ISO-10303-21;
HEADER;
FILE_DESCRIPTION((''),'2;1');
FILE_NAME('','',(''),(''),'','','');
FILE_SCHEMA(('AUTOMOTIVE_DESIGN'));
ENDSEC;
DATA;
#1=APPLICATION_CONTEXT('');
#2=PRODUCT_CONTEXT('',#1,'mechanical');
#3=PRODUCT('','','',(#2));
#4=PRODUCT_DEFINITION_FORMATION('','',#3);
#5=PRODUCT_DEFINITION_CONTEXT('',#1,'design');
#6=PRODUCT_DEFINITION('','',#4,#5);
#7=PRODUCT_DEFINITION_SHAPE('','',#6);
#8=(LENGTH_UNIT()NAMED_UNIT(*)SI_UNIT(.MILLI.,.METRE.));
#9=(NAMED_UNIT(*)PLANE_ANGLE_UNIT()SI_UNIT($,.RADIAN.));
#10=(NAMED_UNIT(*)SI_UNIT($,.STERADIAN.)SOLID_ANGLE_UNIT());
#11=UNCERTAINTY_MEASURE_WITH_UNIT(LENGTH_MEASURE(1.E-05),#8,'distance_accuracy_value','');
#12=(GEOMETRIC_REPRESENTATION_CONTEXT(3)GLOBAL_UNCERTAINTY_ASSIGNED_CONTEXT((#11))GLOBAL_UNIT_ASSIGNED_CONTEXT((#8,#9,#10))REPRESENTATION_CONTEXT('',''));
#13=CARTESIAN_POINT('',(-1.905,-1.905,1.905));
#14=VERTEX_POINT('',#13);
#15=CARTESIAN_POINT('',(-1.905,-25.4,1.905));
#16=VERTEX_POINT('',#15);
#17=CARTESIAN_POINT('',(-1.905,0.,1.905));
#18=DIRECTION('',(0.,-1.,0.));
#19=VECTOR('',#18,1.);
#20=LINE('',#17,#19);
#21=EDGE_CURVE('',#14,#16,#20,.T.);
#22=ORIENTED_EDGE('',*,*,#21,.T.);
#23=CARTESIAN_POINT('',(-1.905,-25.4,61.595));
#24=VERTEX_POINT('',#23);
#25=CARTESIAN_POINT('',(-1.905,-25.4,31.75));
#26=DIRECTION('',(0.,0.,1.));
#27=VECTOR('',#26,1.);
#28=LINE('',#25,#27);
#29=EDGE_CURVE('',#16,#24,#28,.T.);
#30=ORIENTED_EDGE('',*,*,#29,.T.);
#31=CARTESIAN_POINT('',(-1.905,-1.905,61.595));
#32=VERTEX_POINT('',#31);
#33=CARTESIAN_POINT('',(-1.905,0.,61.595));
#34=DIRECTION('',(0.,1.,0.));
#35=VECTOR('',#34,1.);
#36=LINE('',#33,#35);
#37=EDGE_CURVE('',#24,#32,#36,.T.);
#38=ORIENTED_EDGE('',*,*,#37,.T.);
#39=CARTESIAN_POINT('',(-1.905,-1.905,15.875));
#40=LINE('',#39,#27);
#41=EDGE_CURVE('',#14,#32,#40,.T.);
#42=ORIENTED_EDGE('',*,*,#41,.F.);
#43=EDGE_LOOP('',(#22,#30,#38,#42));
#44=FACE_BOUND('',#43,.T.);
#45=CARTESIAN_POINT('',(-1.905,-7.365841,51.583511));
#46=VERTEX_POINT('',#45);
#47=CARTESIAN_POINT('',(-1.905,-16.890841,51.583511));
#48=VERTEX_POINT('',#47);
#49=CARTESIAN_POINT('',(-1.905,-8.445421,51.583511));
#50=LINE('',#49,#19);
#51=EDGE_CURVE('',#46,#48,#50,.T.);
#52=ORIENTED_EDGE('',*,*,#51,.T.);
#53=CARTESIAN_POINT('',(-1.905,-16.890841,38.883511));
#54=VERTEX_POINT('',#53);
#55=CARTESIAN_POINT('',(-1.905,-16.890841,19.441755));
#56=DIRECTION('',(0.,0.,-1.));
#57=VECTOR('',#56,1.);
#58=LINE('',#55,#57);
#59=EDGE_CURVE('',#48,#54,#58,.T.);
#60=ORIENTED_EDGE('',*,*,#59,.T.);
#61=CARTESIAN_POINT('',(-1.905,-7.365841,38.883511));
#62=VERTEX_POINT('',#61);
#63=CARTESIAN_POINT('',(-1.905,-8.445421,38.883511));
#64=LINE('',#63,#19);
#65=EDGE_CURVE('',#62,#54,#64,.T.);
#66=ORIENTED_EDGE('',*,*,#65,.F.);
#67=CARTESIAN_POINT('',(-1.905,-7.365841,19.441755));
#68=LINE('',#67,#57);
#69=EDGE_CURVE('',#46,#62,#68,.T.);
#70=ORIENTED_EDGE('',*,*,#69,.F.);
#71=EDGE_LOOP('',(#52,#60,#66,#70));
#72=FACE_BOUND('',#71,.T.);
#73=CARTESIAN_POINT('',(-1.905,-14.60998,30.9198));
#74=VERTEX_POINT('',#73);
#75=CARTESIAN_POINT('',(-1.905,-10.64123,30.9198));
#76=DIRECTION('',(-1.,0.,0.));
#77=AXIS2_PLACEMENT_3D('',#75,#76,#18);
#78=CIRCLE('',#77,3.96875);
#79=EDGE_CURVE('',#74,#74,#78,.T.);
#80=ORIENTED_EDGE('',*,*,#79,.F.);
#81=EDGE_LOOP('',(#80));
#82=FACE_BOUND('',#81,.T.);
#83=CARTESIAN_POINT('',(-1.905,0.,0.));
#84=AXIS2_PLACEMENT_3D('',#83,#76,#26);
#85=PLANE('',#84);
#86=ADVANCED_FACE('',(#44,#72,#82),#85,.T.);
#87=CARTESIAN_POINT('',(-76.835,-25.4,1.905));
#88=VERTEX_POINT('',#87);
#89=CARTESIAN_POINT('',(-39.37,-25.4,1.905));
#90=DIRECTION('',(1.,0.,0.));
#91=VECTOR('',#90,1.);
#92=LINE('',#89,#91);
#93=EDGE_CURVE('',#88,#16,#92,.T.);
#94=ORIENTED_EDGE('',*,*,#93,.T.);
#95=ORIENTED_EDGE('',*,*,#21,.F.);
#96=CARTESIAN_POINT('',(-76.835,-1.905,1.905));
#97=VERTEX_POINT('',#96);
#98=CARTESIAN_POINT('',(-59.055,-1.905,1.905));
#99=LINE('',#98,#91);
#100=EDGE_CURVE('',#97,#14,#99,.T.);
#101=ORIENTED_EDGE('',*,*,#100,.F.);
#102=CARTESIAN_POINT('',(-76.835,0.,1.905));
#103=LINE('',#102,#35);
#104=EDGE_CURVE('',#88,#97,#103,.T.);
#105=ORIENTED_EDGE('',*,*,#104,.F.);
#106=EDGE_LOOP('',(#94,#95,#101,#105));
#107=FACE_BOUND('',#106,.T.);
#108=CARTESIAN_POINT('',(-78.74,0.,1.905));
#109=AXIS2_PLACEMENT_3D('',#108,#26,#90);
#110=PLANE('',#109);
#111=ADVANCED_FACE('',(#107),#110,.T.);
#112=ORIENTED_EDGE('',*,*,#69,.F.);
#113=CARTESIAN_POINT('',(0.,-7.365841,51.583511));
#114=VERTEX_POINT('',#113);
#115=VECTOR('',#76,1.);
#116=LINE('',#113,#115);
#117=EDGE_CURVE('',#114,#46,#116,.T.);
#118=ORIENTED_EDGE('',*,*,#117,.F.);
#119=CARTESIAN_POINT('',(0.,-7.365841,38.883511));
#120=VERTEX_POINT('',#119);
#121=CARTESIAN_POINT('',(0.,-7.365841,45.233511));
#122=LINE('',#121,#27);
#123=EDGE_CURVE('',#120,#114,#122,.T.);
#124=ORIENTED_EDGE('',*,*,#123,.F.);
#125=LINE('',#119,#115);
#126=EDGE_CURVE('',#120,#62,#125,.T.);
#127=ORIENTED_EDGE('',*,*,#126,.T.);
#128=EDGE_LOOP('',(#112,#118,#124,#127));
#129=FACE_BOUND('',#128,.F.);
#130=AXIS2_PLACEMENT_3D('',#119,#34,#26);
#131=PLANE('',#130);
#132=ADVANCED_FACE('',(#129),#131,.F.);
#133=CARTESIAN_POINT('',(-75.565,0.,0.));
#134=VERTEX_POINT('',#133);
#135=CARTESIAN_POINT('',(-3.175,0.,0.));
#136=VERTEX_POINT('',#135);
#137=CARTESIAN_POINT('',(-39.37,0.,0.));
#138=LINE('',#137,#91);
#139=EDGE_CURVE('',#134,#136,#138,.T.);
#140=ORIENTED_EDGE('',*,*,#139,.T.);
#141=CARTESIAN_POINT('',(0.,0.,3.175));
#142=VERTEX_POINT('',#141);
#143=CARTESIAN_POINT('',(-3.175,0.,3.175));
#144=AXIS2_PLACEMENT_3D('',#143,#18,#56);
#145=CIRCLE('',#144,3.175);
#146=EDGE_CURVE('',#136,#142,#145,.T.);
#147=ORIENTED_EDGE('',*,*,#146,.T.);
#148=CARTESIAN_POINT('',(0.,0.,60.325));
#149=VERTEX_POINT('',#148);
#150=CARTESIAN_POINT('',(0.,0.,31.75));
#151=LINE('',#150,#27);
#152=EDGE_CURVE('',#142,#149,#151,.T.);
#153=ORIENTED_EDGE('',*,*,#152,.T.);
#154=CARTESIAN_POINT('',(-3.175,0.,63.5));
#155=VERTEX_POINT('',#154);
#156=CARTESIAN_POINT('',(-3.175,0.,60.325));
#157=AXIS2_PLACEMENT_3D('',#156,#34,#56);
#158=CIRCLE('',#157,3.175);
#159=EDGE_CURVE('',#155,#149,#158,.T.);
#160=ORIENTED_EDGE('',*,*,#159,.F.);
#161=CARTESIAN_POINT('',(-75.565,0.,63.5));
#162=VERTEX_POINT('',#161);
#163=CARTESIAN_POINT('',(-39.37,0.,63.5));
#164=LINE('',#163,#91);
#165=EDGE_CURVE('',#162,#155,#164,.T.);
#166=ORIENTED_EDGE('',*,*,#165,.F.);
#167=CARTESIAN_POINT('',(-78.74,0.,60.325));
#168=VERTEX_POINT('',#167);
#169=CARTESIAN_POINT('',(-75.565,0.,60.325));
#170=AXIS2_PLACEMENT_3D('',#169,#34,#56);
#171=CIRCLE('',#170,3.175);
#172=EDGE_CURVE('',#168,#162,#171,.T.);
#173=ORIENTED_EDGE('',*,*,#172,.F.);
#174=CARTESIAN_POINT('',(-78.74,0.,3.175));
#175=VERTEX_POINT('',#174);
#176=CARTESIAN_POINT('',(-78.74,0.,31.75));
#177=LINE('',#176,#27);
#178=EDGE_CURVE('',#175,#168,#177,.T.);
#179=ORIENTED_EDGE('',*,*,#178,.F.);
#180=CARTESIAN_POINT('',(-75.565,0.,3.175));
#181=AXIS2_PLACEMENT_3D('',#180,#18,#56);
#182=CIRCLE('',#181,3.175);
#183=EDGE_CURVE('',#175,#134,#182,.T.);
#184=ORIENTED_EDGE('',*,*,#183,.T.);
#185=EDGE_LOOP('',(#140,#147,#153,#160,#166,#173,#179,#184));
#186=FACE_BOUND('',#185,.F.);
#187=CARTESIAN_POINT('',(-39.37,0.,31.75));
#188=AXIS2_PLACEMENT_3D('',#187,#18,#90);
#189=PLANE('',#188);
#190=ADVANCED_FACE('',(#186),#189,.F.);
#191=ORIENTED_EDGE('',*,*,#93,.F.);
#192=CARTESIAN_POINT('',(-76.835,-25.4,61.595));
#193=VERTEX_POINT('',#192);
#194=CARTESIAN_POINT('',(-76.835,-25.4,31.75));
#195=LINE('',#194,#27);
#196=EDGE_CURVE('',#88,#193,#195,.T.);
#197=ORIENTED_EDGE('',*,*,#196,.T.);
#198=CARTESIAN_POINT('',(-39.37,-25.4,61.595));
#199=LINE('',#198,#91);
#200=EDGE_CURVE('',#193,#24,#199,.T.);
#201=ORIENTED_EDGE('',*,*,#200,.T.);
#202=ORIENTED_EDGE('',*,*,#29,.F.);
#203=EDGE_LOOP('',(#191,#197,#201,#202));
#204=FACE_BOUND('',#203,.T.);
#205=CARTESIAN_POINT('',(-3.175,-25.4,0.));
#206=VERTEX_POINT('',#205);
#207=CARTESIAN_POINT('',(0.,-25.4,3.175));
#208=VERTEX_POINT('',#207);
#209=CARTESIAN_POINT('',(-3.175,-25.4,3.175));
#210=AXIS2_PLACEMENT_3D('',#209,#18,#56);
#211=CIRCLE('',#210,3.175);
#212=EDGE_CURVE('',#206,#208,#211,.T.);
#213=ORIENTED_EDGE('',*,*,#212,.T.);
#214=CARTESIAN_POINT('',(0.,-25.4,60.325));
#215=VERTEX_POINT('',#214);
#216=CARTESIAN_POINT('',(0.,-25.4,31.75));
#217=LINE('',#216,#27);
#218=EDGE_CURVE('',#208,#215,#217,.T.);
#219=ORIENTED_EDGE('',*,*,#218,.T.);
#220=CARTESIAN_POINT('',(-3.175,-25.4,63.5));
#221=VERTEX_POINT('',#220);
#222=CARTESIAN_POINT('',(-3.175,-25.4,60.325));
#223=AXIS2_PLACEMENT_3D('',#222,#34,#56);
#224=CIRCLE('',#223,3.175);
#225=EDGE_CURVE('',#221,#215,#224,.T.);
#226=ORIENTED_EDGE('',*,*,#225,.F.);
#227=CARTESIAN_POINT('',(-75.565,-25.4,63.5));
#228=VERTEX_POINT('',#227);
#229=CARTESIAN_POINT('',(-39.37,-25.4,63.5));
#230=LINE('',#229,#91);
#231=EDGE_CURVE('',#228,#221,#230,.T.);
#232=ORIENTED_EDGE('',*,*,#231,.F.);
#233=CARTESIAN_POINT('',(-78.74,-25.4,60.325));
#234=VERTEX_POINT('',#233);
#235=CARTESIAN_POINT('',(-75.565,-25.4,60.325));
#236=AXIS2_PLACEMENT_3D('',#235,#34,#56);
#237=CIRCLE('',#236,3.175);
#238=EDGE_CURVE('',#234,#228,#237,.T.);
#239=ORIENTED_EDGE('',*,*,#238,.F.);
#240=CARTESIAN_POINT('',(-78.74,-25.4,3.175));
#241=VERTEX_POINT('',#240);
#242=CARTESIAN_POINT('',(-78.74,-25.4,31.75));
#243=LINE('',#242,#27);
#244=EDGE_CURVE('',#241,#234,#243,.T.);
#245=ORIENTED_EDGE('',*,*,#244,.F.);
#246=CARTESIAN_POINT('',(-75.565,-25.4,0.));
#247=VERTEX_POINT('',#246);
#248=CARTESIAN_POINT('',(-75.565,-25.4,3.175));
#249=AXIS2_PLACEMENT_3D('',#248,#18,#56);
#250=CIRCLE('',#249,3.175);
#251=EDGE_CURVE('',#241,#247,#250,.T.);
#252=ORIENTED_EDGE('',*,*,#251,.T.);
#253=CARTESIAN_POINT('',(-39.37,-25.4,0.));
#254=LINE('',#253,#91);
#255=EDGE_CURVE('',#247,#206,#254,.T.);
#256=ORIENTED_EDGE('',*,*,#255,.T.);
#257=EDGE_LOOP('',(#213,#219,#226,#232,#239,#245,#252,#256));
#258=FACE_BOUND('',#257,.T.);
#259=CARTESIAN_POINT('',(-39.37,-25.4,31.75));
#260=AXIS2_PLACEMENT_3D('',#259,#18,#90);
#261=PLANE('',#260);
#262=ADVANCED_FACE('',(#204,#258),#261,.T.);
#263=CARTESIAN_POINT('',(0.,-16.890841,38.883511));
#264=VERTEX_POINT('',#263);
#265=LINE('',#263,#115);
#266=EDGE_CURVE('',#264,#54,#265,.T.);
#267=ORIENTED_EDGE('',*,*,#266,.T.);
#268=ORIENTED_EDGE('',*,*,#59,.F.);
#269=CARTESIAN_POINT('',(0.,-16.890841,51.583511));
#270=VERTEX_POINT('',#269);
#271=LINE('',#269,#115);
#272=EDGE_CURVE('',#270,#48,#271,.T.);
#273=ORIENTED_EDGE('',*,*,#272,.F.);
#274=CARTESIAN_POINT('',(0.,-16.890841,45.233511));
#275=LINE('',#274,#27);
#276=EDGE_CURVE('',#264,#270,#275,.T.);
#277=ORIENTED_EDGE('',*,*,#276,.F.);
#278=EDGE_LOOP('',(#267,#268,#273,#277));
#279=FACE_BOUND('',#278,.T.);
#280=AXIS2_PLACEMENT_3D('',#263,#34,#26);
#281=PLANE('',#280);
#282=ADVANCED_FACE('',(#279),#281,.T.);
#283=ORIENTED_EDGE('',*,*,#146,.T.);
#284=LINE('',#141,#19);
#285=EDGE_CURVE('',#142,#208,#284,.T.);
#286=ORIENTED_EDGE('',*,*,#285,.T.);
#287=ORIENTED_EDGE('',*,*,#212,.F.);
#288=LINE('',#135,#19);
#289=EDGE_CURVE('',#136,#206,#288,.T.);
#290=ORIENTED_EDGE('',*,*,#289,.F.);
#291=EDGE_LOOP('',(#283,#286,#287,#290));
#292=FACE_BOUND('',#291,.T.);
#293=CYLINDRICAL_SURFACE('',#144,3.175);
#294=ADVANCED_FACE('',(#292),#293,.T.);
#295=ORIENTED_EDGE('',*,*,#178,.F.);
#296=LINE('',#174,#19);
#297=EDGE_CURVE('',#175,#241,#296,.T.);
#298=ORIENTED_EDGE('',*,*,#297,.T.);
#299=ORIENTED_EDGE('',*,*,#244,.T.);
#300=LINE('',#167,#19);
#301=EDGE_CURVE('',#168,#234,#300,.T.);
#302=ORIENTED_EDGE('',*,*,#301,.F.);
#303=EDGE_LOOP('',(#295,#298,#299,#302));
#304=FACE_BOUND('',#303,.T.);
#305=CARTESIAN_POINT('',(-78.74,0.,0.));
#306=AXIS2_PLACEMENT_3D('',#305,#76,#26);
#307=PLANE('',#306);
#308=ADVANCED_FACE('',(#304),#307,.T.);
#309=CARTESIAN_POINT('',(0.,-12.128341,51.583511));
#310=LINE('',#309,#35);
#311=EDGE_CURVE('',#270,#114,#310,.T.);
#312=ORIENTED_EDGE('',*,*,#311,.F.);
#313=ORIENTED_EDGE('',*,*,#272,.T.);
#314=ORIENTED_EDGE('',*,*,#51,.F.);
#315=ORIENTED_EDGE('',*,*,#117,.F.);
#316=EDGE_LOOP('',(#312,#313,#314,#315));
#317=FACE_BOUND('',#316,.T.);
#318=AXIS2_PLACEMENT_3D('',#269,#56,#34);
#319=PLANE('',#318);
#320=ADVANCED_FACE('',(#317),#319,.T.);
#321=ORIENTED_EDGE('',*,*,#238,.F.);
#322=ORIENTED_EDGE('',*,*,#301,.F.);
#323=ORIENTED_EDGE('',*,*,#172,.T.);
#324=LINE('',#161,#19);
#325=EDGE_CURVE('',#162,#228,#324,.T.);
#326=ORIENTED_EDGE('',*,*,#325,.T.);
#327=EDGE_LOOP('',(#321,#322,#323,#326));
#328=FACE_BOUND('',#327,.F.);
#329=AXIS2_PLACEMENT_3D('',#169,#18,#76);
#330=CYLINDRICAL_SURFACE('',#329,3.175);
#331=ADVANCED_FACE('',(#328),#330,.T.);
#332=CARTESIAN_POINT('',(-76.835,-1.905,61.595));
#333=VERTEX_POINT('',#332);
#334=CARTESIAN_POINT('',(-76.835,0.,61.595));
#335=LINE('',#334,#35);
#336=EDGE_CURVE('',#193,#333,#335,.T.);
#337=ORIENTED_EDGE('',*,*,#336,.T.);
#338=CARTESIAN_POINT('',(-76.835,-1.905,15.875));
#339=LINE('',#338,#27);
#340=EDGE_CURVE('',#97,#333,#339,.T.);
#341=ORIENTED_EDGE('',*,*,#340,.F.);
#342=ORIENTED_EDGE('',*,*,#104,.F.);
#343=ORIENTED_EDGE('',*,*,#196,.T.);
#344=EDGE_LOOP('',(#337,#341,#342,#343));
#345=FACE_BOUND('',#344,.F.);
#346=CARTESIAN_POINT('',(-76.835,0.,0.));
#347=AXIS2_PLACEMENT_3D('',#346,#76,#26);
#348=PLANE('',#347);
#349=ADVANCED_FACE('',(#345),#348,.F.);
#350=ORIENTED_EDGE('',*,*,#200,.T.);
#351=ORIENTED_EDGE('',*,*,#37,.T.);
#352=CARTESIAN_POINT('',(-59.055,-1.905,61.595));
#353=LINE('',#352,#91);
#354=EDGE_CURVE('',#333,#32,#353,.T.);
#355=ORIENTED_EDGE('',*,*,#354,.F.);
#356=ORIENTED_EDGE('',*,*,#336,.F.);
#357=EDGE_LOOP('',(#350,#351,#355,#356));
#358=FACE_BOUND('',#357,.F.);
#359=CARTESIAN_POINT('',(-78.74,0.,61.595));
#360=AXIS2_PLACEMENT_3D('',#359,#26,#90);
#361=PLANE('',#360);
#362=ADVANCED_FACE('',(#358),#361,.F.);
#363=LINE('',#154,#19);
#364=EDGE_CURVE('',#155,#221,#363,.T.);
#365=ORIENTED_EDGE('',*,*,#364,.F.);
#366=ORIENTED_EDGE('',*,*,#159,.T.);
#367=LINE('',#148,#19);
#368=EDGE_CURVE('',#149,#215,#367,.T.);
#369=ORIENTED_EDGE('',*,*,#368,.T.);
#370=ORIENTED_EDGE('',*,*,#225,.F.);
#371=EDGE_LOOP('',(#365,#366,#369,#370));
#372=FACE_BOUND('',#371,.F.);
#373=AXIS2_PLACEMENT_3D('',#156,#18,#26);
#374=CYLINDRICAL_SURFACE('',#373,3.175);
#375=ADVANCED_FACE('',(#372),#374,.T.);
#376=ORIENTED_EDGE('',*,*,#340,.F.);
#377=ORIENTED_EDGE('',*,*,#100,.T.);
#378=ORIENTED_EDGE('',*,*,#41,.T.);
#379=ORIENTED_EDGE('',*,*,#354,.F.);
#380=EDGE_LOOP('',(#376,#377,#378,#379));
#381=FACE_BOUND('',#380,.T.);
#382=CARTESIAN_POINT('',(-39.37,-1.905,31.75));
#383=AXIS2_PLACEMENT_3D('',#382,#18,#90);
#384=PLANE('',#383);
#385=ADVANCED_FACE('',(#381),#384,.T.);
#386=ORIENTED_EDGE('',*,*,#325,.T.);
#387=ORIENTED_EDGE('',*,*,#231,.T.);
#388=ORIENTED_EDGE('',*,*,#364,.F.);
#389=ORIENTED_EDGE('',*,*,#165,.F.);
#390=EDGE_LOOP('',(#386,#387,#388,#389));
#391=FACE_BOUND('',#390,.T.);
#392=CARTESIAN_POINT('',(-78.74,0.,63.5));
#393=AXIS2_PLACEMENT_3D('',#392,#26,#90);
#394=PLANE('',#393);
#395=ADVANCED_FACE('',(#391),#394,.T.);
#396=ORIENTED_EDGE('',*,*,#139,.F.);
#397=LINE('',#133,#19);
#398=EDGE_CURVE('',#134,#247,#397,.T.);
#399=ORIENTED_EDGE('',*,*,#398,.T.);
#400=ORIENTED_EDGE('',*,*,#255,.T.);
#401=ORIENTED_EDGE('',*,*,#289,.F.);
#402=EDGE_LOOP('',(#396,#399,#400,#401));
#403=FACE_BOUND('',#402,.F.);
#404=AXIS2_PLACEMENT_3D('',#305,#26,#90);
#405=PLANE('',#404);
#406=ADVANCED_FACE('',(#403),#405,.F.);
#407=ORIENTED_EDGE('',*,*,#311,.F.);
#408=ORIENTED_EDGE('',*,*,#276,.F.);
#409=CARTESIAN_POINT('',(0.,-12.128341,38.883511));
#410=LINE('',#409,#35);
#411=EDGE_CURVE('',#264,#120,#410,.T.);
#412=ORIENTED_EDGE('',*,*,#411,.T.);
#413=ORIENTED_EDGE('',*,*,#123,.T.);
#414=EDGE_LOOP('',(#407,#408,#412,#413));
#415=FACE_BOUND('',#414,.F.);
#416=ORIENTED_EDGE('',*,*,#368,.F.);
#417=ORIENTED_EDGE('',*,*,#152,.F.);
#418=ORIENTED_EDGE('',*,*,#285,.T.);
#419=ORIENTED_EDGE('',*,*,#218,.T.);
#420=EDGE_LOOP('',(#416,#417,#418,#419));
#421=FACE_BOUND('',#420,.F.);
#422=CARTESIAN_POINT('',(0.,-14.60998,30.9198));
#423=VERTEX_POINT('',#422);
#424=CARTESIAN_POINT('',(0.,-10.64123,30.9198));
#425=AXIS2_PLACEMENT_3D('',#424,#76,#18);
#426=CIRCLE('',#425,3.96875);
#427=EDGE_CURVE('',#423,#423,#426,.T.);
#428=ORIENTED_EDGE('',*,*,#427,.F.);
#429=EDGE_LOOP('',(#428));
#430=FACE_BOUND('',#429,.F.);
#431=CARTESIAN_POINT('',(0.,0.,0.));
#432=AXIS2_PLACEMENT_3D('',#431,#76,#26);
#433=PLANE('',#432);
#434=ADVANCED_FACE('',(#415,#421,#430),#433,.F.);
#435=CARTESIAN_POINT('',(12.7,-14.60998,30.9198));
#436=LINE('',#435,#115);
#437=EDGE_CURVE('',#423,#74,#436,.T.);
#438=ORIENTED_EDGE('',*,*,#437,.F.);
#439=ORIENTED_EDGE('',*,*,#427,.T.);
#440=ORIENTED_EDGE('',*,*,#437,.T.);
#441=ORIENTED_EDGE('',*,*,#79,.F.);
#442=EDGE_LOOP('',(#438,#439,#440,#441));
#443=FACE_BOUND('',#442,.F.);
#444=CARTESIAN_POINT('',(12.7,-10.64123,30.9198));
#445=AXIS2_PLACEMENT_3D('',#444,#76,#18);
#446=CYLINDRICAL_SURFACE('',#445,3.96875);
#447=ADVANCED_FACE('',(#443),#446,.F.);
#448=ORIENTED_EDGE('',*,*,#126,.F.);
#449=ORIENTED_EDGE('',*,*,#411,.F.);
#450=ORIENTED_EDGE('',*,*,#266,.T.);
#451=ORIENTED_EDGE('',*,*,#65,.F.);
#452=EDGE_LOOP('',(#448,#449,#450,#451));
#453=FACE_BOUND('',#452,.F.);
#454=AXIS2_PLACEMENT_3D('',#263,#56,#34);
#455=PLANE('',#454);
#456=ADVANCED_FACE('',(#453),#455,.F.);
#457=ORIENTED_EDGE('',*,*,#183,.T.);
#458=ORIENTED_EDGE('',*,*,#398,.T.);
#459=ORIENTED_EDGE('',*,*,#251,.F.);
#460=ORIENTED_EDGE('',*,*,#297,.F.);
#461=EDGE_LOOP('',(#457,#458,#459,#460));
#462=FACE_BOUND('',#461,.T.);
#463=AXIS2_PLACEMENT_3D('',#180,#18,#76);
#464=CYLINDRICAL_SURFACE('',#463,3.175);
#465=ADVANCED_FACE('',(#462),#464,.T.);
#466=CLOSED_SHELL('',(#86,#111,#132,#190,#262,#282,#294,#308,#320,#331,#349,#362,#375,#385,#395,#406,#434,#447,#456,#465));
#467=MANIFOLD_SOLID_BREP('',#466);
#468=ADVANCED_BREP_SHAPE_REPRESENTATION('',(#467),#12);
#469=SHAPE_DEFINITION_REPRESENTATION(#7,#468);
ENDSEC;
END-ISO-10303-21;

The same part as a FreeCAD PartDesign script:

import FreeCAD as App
import Part
import Sketcher
Q = App.Units.Quantity


def edges_at(feature, points):
    """Names of the edges that pass closest to the given points."""
    edges = feature.Shape.Edges
    near = lambda p: min(range(len(edges)), key=lambda i: edges[i].distToShape(Part.Vertex(*p))[0])
    return sorted({f"Edge{near(p) + 1}" for p in points})


def faces_at(feature, points):
    """Names of the faces that lie closest to the given points."""
    faces = feature.Shape.Faces
    near = lambda p: min(range(len(faces)), key=lambda i: faces[i].distToShape(Part.Vertex(*p))[0])
    return sorted({f"Face{near(p) + 1}" for p in points})


def add_polygon(sketch, points):
    """Adds a closed chain of lines whose ends are joined by coincident constraints."""
    first, n = sketch.GeometryCount, len(points)
    for a, b in zip(points, points[1:] + points[:1]):
        sketch.addGeometry(Part.LineSegment(App.Vector(*a, 0), App.Vector(*b, 0)), False)
    for i in range(n):
        sketch.addConstraint(Sketcher.Constraint("Coincident", first + i, 2, first + (i + 1) % n, 1))

doc = App.newDocument("Part")
body = doc.addObject("PartDesign::Body", "Body")

sketch1 = body.newObject("Sketcher::SketchObject", "Sketch")
sketch1.AttachmentSupport = (doc.getObject("XZ_Plane"), [""])
sketch1.MapMode = "FlatFace"
add_polygon(sketch1, [(-78.74, 63.5), (-78.74, 0), (0, 0), (0, 63.5)])
sketch1.addConstraint([
    Sketcher.Constraint("Vertical", 0),
    Sketcher.Constraint("Horizontal", 1),
    Sketcher.Constraint("Vertical", 2),
    Sketcher.Constraint("Horizontal", 3),
    Sketcher.Constraint("Coincident", 1, 2, -1, 1),
    Sketcher.Constraint("DistanceX", 1, 1, 1, 2, Q("3.1 in")),
    Sketcher.Constraint("DistanceY", 0, 2, 0, 1, Q("2.5 in")),
])
pad1 = body.newObject("PartDesign::Pad", "Pad")
pad1.Profile = sketch1
pad1.Length = Q("1 in")
doc.recompute()

thickness = body.newObject("PartDesign::Thickness", "Thickness")
thickness.Base = (pad1, faces_at(pad1, [(-39.37, -25.4, 31.75)]))
thickness.Value = Q("0.075 in")
thickness.Reversed = True
thickness.Join = "Arc"

sketch2 = body.newObject("Sketcher::SketchObject", "Sketch001")
sketch2.AttachmentSupport = (doc.getObject("YZ_Plane"), [""])
sketch2.MapMode = "FlatFace"
sketch2.addGeometry(Part.Circle(App.Vector(-10.64123, 30.9198, 0), App.Vector(0, 0, 1), 3.96875), False)
sketch2.addConstraint([
    Sketcher.Constraint("Diameter", 0, Q("0.3125 in")),
    Sketcher.Constraint("DistanceY", -1, 1, 0, 3, Q("30.9198 mm")),
    Sketcher.Constraint("DistanceX", 0, 3, -1, 1, Q("10.64123 mm")),
])
doc.recompute()
hole = body.newObject("PartDesign::Hole", "Hole")
hole.Profile = sketch2
hole.ThreadType = "None"
hole.Diameter = Q("0.3125 in")
hole.DepthType = "Dimension"
hole.Depth = Q("0.5 in")
hole.DrillPoint = "Flat"

sketch3 = body.newObject("Sketcher::SketchObject", "Sketch002")
sketch3.AttachmentSupport = (doc.getObject("YZ_Plane"), [""])
sketch3.MapMode = "FlatFace"
add_polygon(sketch3, [(-16.890841, 51.583511), (-16.890841, 38.883511), (-7.365841, 38.883511), (-7.365841, 51.583511)])
sketch3.addConstraint([
    Sketcher.Constraint("Vertical", 0),
    Sketcher.Constraint("Horizontal", 1),
    Sketcher.Constraint("Vertical", 2),
    Sketcher.Constraint("Horizontal", 3),
    Sketcher.Constraint("DistanceY", 0, 2, 0, 1, Q("0.5 in")),
    Sketcher.Constraint("DistanceX", 1, 1, 1, 2, Q("0.375 in")),
    Sketcher.Constraint("DistanceX", 0, 2, -1, 1, Q("16.890841 mm")),
    Sketcher.Constraint("DistanceY", -1, 1, 0, 2, Q("38.883511 mm")),
])
pocket1 = body.newObject("PartDesign::Pocket", "Pocket")
pocket1.Profile = sketch3
pocket1.Length = Q("1 in")
doc.recompute()

fillet = body.newObject("PartDesign::Fillet", "Fillet")
fillet.Base = (pocket1, edges_at(pocket1, [
    (-78.74, -12.7, 63.5),
    (0, -12.7, 63.5),
    (0, -12.7, 0),
    (-78.74, -12.7, 0),
]))
fillet.Radius = Q("0.125 in")

doc.recompute()
